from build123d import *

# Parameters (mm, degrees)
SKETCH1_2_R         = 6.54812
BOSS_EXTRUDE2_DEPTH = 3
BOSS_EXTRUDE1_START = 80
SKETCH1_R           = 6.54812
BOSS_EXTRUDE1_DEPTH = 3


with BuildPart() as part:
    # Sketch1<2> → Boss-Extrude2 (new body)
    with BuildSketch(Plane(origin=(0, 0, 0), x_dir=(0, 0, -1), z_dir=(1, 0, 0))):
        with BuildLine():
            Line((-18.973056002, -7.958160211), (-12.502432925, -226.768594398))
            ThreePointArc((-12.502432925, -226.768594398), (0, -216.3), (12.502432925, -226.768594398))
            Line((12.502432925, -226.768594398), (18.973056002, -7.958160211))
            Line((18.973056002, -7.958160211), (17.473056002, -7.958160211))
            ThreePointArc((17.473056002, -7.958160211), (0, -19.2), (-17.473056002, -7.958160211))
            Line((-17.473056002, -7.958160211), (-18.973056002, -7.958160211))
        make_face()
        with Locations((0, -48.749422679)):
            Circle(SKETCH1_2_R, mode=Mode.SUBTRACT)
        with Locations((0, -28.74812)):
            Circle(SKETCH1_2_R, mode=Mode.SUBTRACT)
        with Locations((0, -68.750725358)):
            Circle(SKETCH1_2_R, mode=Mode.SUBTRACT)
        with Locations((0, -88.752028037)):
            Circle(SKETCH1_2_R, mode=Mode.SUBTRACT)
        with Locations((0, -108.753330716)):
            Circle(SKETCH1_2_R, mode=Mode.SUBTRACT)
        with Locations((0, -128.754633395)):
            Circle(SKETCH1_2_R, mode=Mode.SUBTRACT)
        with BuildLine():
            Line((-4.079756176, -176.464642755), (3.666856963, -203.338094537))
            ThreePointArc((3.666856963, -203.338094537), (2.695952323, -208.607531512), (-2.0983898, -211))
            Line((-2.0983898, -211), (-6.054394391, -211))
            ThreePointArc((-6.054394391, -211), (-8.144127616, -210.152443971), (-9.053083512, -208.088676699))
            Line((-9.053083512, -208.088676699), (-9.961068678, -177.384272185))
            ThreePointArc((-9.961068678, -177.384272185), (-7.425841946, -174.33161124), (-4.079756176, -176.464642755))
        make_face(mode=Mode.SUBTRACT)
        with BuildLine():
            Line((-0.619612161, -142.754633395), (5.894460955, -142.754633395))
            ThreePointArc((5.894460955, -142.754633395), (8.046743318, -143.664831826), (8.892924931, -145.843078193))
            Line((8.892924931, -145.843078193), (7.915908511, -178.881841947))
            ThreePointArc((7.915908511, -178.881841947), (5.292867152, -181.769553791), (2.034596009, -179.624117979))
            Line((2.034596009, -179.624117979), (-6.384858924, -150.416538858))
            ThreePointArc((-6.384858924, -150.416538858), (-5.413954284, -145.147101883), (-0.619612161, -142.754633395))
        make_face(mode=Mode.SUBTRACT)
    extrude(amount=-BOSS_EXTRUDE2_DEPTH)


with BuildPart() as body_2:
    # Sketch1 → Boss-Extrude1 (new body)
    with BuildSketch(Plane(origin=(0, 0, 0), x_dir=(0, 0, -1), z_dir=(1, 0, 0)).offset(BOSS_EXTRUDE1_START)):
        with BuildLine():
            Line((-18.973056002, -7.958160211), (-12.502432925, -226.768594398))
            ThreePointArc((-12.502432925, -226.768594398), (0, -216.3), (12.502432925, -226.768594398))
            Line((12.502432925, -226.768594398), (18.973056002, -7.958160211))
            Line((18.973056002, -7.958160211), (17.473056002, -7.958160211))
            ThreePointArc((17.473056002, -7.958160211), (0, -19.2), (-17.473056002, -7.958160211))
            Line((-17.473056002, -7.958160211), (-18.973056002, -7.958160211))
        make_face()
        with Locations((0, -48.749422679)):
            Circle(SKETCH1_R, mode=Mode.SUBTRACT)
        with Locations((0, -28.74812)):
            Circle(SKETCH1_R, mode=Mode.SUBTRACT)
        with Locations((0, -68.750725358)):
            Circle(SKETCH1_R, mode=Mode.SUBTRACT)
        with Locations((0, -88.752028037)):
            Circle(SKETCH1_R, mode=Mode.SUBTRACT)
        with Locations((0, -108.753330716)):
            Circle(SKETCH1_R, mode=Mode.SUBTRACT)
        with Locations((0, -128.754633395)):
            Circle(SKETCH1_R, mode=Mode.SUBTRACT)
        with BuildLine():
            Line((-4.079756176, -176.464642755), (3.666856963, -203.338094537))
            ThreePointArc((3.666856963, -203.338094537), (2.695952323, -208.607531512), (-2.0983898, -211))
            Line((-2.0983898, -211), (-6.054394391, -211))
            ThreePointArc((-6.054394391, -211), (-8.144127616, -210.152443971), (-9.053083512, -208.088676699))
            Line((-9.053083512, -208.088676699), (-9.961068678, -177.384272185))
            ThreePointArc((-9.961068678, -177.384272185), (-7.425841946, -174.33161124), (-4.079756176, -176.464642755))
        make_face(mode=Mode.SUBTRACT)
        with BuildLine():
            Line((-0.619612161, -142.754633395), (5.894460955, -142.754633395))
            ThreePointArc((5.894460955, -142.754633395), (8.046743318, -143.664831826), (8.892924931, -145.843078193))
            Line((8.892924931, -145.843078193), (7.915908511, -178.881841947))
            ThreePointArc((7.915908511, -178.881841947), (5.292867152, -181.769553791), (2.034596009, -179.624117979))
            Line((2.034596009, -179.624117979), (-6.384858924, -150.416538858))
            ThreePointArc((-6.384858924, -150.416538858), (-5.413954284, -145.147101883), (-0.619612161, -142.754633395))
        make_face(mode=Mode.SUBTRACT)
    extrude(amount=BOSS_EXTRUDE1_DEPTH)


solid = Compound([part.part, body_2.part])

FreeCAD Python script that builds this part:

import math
import FreeCAD as App
import Part
import Sketcher
Q = App.Units.Quantity

doc = App.newDocument("Part")
body = doc.addObject("PartDesign::Body", "Body")

# Sketch on YZ plane
sketch1 = body.newObject("Sketcher::SketchObject", "Sketch")
sketch1.AttachmentSupport = (doc.getObject("YZ_Plane"), [""])
sketch1.MapMode = "FlatFace"
sketch1.addGeometry([
    Part.LineSegment(App.Vector(-8, 19, 0), App.Vector(-226.8, 12.5, 0)),  # 0
    Part.ArcOfCircle(Part.Circle(App.Vector(-229, 0, 0), App.Vector(0, 0, 1), 12.7), math.radians(-80), math.radians(80)),  # 1
    Part.LineSegment(App.Vector(-226.8, -12.5, 0), App.Vector(-8, -19, 0)),  # 2
    Part.LineSegment(App.Vector(-8, -19, 0), App.Vector(-8, -17.5, 0)),  # 3
    Part.ArcOfCircle(Part.Circle(App.Vector(0, 0, 0), App.Vector(0, 0, 1), 19.2), math.radians(114), math.radians(246)),  # 4
    Part.LineSegment(App.Vector(-8, 17.5, 0), App.Vector(-8, 19, 0)),  # 5
    Part.ArcOfCircle(Part.Circle(App.Vector(-177.3, 7, 0), App.Vector(0, 0, 1), 3), math.radians(-74), math.radians(92)),  # 6
    Part.LineSegment(App.Vector(-176.5, 4.1, 0), App.Vector(-203.3, -3.7, 0)),  # 7
    Part.ArcOfCircle(Part.Circle(App.Vector(-205, 2.1, 0), App.Vector(0, 0, 1), 6), math.radians(180), math.radians(286)),  # 8
    Part.LineSegment(App.Vector(-211, 2.1, 0), App.Vector(-211, 6.1, 0)),  # 9
    Part.ArcOfCircle(Part.Circle(App.Vector(-208, 6.1, 0), App.Vector(0, 0, 1), 3), math.radians(92), math.radians(180)),  # 10
    Part.LineSegment(App.Vector(-208.1, 9.1, 0), App.Vector(-177.4, 10, 0)),  # 11
    Part.ArcOfCircle(Part.Circle(App.Vector(-148.8, 0.6, 0), App.Vector(0, 0, 1), 6), math.radians(0), math.radians(106)),  # 12
    Part.LineSegment(App.Vector(-142.8, 0.6, 0), App.Vector(-142.8, -5.9, 0)),  # 13
    Part.ArcOfCircle(Part.Circle(App.Vector(-145.8, -5.9, 0), App.Vector(0, 0, 1), 3), math.radians(-92), math.radians(0)),  # 14
    Part.LineSegment(App.Vector(-145.8, -8.9, 0), App.Vector(-178.9, -7.9, 0)),  # 15
    Part.ArcOfCircle(Part.Circle(App.Vector(-178.8, -4.9, 0), App.Vector(0, 0, 1), 3), math.radians(106), math.radians(268)),  # 16
    Part.LineSegment(App.Vector(-179.6, -2, 0), App.Vector(-150.4, 6.4, 0)),  # 17
    Part.Circle(App.Vector(-128.8, 0, 0), App.Vector(0, 0, 1), 6.5),  # 18
    Part.Circle(App.Vector(-108.8, 0, 0), App.Vector(0, 0, 1), 6.5),  # 19
    Part.Circle(App.Vector(-88.8, 0, 0), App.Vector(0, 0, 1), 6.5),  # 20
    Part.Circle(App.Vector(-68.8, 0, 0), App.Vector(0, 0, 1), 6.5),  # 21
    Part.Circle(App.Vector(-48.7, 0, 0), App.Vector(0, 0, 1), 6.5),  # 22
    Part.Circle(App.Vector(-28.7, 0, 0), App.Vector(0, 0, 1), 6.5),  # 23
], False)
sketch1.addConstraint([
    Sketcher.Constraint("Coincident", 0, 2, 1, 2),
    Sketcher.Constraint("Coincident", 1, 1, 2, 1),
    Sketcher.Constraint("Coincident", 2, 2, 3, 1),
    Sketcher.Constraint("Coincident", 3, 2, 4, 2),
    Sketcher.Constraint("Coincident", 4, 1, 5, 1),
    Sketcher.Constraint("Coincident", 5, 2, 0, 1),
    Sketcher.Constraint("Tangent", 6, 1, 7, 1),
    Sketcher.Constraint("Tangent", 7, 2, 8, 2),
    Sketcher.Constraint("Tangent", 8, 1, 9, 1),
    Sketcher.Constraint("Tangent", 9, 2, 10, 2),
    Sketcher.Constraint("Tangent", 10, 1, 11, 1),
    Sketcher.Constraint("Tangent", 11, 2, 6, 2),
    Sketcher.Constraint("Tangent", 12, 1, 13, 1),
    Sketcher.Constraint("Tangent", 13, 2, 14, 2),
    Sketcher.Constraint("Tangent", 14, 1, 15, 1),
    Sketcher.Constraint("Tangent", 15, 2, 16, 2),
    Sketcher.Constraint("Tangent", 16, 1, 17, 1),
    Sketcher.Constraint("Tangent", 17, 2, 12, 2),
    Sketcher.Constraint("Vertical", 3),
    Sketcher.Constraint("Vertical", 5),
    Sketcher.Constraint("Vertical", 9),
    Sketcher.Constraint("Vertical", 13),
    Sketcher.Constraint("Coincident", 4, 3, -1, 1),
    Sketcher.Constraint("Equal", 6, 10),
    Sketcher.Constraint("Equal", 8, 12),
    Sketcher.Constraint("Equal", 10, 16),
    Sketcher.Constraint("Equal", 18, 19),
    Sketcher.Constraint("Equal", 19, 20),
    Sketcher.Constraint("Equal", 20, 21),
    Sketcher.Constraint("Equal", 21, 22),
    Sketcher.Constraint("Equal", 22, 23),
    Sketcher.Constraint("Symmetric", 0, 2, 1, 1, -1),
    Sketcher.Constraint("Symmetric", 2, 2, 5, 2, -1),
    Sketcher.Constraint("PointOnObject", 18, 3, -1),
    Sketcher.Constraint("PointOnObject", 19, 3, -1),
    Sketcher.Constraint("PointOnObject", 20, 3, -1),
    Sketcher.Constraint("PointOnObject", 21, 3, -1),
    Sketcher.Constraint("PointOnObject", 22, 3, -1),
    Sketcher.Constraint("PointOnObject", 23, 3, -1),
    Sketcher.Constraint("Parallel", 0, 11),
    Sketcher.Constraint("Parallel", 2, 15),
    Sketcher.Constraint("Parallel", 7, 17),
    Sketcher.Constraint("Radius", 6, Q("3 mm")),
    Sketcher.Constraint("Radius", 8, Q("6 mm")),
    Sketcher.Constraint("Radius", 1, Q("12.7 mm")),
    Sketcher.Constraint("Radius", 4, Q("19.2 mm")),
    Sketcher.Constraint("DistanceY", 3, 1, 3, 2, Q("1.5 mm")),
    Sketcher.Constraint("DistanceX", 1, 3, -1, 1, Q("229 mm")),
    Sketcher.Constraint("DistanceX", 8, 3, -1, 1, Q("205 mm")),
    Sketcher.Constraint("DistanceX", 12, 3, 18, 3, Q("20 mm")),
    Sketcher.Constraint("Diameter", 18, Q("13.09624 mm")),
    Sketcher.Constraint("Radius", 14, Q("2.999775 mm")),
    Sketcher.Constraint("DistanceX", 0, 2, 6, 3, Q("49.472999 mm")),
    Sketcher.Constraint("DistanceY", 16, 3, 6, 3, Q("11.879599 mm")),
    Sketcher.Constraint("DistanceX", 1, 1, 7, 2, Q("23.4305 mm")),
    Sketcher.Constraint("DistanceX", 15, 2, 6, 1, Q("2.417199 mm")),
    Sketcher.Constraint("DistanceY", 9, 1, 9, 2, Q("3.956005 mm")),
    Sketcher.Constraint("DistanceY", 13, 2, 13, 1, Q("6.514073 mm")),
    Sketcher.Constraint("DistanceY", -1, 1, 6, 3, Q("6.96238 mm")),
    Sketcher.Constraint("DistanceY", -1, 1, 8, 3, Q("2.09839 mm")),
    Sketcher.Constraint("DistanceX", 19, 3, -1, 1, Q("108.753331 mm")),
    Sketcher.Constraint("DistanceX", 20, 3, -1, 1, Q("88.752028 mm")),
    Sketcher.Constraint("DistanceX", 23, 3, -1, 1, Q("28.74812 mm")),
    Sketcher.Constraint("DistanceX", 18, 3, 21, 3, Q("60.003908 mm")),
    Sketcher.Constraint("DistanceX", 19, 3, 22, 3, Q("60.003908 mm")),
])
pad1 = body.newObject("PartDesign::Pad", "Pad")
pad1.Profile = sketch1
pad1.Length = 3
pad1.Reversed = True
body2 = doc.addObject("PartDesign::Body", "Body001")

# Sketch on YZ plane
sketch2 = body2.newObject("Sketcher::SketchObject", "Sketch001")
sketch2.AttachmentSupport = (doc.getObject("YZ_Plane001"), [""])
sketch2.MapMode = "FlatFace"
sketch2.AttachmentOffset = App.Placement(App.Vector(0, 0, 80), App.Rotation())
sketch2.addGeometry([
    Part.LineSegment(App.Vector(-8, 19, 0), App.Vector(-226.8, 12.5, 0)),  # 0
    Part.ArcOfCircle(Part.Circle(App.Vector(-229, 0, 0), App.Vector(0, 0, 1), 12.7), math.radians(-80), math.radians(80)),  # 1
    Part.LineSegment(App.Vector(-226.8, -12.5, 0), App.Vector(-8, -19, 0)),  # 2
    Part.LineSegment(App.Vector(-8, -19, 0), App.Vector(-8, -17.5, 0)),  # 3
    Part.ArcOfCircle(Part.Circle(App.Vector(0, 0, 0), App.Vector(0, 0, 1), 19.2), math.radians(114), math.radians(246)),  # 4
    Part.LineSegment(App.Vector(-8, 17.5, 0), App.Vector(-8, 19, 0)),  # 5
    Part.ArcOfCircle(Part.Circle(App.Vector(-177.3, 7, 0), App.Vector(0, 0, 1), 3), math.radians(-74), math.radians(92)),  # 6
    Part.LineSegment(App.Vector(-176.5, 4.1, 0), App.Vector(-203.3, -3.7, 0)),  # 7
    Part.ArcOfCircle(Part.Circle(App.Vector(-205, 2.1, 0), App.Vector(0, 0, 1), 6), math.radians(180), math.radians(286)),  # 8
    Part.LineSegment(App.Vector(-211, 2.1, 0), App.Vector(-211, 6.1, 0)),  # 9
    Part.ArcOfCircle(Part.Circle(App.Vector(-208, 6.1, 0), App.Vector(0, 0, 1), 3), math.radians(92), math.radians(180)),  # 10
    Part.LineSegment(App.Vector(-208.1, 9.1, 0), App.Vector(-177.4, 10, 0)),  # 11
    Part.ArcOfCircle(Part.Circle(App.Vector(-148.8, 0.6, 0), App.Vector(0, 0, 1), 6), math.radians(0), math.radians(106)),  # 12
    Part.LineSegment(App.Vector(-142.8, 0.6, 0), App.Vector(-142.8, -5.9, 0)),  # 13
    Part.ArcOfCircle(Part.Circle(App.Vector(-145.8, -5.9, 0), App.Vector(0, 0, 1), 3), math.radians(-92), math.radians(0)),  # 14
    Part.LineSegment(App.Vector(-145.8, -8.9, 0), App.Vector(-178.9, -7.9, 0)),  # 15
    Part.ArcOfCircle(Part.Circle(App.Vector(-178.8, -4.9, 0), App.Vector(0, 0, 1), 3), math.radians(106), math.radians(268)),  # 16
    Part.LineSegment(App.Vector(-179.6, -2, 0), App.Vector(-150.4, 6.4, 0)),  # 17
    Part.Circle(App.Vector(-128.8, 0, 0), App.Vector(0, 0, 1), 6.5),  # 18
    Part.Circle(App.Vector(-108.8, 0, 0), App.Vector(0, 0, 1), 6.5),  # 19
    Part.Circle(App.Vector(-88.8, 0, 0), App.Vector(0, 0, 1), 6.5),  # 20
    Part.Circle(App.Vector(-68.8, 0, 0), App.Vector(0, 0, 1), 6.5),  # 21
    Part.Circle(App.Vector(-48.7, 0, 0), App.Vector(0, 0, 1), 6.5),  # 22
    Part.Circle(App.Vector(-28.7, 0, 0), App.Vector(0, 0, 1), 6.5),  # 23
], False)
sketch2.addConstraint([
    Sketcher.Constraint("Coincident", 0, 2, 1, 2),
    Sketcher.Constraint("Coincident", 1, 1, 2, 1),
    Sketcher.Constraint("Coincident", 2, 2, 3, 1),
    Sketcher.Constraint("Coincident", 3, 2, 4, 2),
    Sketcher.Constraint("Coincident", 4, 1, 5, 1),
    Sketcher.Constraint("Coincident", 5, 2, 0, 1),
    Sketcher.Constraint("Tangent", 6, 1, 7, 1),
    Sketcher.Constraint("Tangent", 7, 2, 8, 2),
    Sketcher.Constraint("Tangent", 8, 1, 9, 1),
    Sketcher.Constraint("Tangent", 9, 2, 10, 2),
    Sketcher.Constraint("Tangent", 10, 1, 11, 1),
    Sketcher.Constraint("Tangent", 11, 2, 6, 2),
    Sketcher.Constraint("Tangent", 12, 1, 13, 1),
    Sketcher.Constraint("Tangent", 13, 2, 14, 2),
    Sketcher.Constraint("Tangent", 14, 1, 15, 1),
    Sketcher.Constraint("Tangent", 15, 2, 16, 2),
    Sketcher.Constraint("Tangent", 16, 1, 17, 1),
    Sketcher.Constraint("Tangent", 17, 2, 12, 2),
    Sketcher.Constraint("Vertical", 3),
    Sketcher.Constraint("Vertical", 5),
    Sketcher.Constraint("Vertical", 9),
    Sketcher.Constraint("Vertical", 13),
    Sketcher.Constraint("Coincident", 4, 3, -1, 1),
    Sketcher.Constraint("Equal", 6, 10),
    Sketcher.Constraint("Equal", 8, 12),
    Sketcher.Constraint("Equal", 10, 16),
    Sketcher.Constraint("Equal", 18, 19),
    Sketcher.Constraint("Equal", 19, 20),
    Sketcher.Constraint("Equal", 20, 21),
    Sketcher.Constraint("Equal", 21, 22),
    Sketcher.Constraint("Equal", 22, 23),
    Sketcher.Constraint("Symmetric", 0, 2, 1, 1, -1),
    Sketcher.Constraint("Symmetric", 2, 2, 5, 2, -1),
    Sketcher.Constraint("PointOnObject", 18, 3, -1),
    Sketcher.Constraint("PointOnObject", 19, 3, -1),
    Sketcher.Constraint("PointOnObject", 20, 3, -1),
    Sketcher.Constraint("PointOnObject", 21, 3, -1),
    Sketcher.Constraint("PointOnObject", 22, 3, -1),
    Sketcher.Constraint("PointOnObject", 23, 3, -1),
    Sketcher.Constraint("Parallel", 0, 11),
    Sketcher.Constraint("Parallel", 2, 15),
    Sketcher.Constraint("Parallel", 7, 17),
    Sketcher.Constraint("Radius", 6, Q("3 mm")),
    Sketcher.Constraint("Radius", 8, Q("6 mm")),
    Sketcher.Constraint("Radius", 1, Q("12.7 mm")),
    Sketcher.Constraint("Radius", 4, Q("19.2 mm")),
    Sketcher.Constraint("DistanceY", 3, 1, 3, 2, Q("1.5 mm")),
    Sketcher.Constraint("DistanceX", 1, 3, -1, 1, Q("229 mm")),
    Sketcher.Constraint("DistanceX", 8, 3, -1, 1, Q("205 mm")),
    Sketcher.Constraint("DistanceX", 12, 3, 18, 3, Q("20 mm")),
    Sketcher.Constraint("Diameter", 18, Q("13.09624 mm")),
    Sketcher.Constraint("Radius", 14, Q("2.999775 mm")),
    Sketcher.Constraint("DistanceX", 0, 2, 6, 3, Q("49.472999 mm")),
    Sketcher.Constraint("DistanceY", 16, 3, 6, 3, Q("11.879599 mm")),
    Sketcher.Constraint("DistanceX", 1, 1, 7, 2, Q("23.4305 mm")),
    Sketcher.Constraint("DistanceX", 15, 2, 6, 1, Q("2.417199 mm")),
    Sketcher.Constraint("DistanceY", 9, 1, 9, 2, Q("3.956005 mm")),
    Sketcher.Constraint("DistanceY", 13, 2, 13, 1, Q("6.514073 mm")),
    Sketcher.Constraint("DistanceY", -1, 1, 6, 3, Q("6.96238 mm")),
    Sketcher.Constraint("DistanceY", -1, 1, 8, 3, Q("2.09839 mm")),
    Sketcher.Constraint("DistanceX", 19, 3, -1, 1, Q("108.753331 mm")),
    Sketcher.Constraint("DistanceX", 20, 3, -1, 1, Q("88.752028 mm")),
    Sketcher.Constraint("DistanceX", 23, 3, -1, 1, Q("28.74812 mm")),
    Sketcher.Constraint("DistanceX", 18, 3, 21, 3, Q("60.003908 mm")),
    Sketcher.Constraint("DistanceX", 19, 3, 22, 3, Q("60.003908 mm")),
])
pad2 = body2.newObject("PartDesign::Pad", "Pad001")
pad2.Profile = sketch2
pad2.Length = 3

doc.recompute()
